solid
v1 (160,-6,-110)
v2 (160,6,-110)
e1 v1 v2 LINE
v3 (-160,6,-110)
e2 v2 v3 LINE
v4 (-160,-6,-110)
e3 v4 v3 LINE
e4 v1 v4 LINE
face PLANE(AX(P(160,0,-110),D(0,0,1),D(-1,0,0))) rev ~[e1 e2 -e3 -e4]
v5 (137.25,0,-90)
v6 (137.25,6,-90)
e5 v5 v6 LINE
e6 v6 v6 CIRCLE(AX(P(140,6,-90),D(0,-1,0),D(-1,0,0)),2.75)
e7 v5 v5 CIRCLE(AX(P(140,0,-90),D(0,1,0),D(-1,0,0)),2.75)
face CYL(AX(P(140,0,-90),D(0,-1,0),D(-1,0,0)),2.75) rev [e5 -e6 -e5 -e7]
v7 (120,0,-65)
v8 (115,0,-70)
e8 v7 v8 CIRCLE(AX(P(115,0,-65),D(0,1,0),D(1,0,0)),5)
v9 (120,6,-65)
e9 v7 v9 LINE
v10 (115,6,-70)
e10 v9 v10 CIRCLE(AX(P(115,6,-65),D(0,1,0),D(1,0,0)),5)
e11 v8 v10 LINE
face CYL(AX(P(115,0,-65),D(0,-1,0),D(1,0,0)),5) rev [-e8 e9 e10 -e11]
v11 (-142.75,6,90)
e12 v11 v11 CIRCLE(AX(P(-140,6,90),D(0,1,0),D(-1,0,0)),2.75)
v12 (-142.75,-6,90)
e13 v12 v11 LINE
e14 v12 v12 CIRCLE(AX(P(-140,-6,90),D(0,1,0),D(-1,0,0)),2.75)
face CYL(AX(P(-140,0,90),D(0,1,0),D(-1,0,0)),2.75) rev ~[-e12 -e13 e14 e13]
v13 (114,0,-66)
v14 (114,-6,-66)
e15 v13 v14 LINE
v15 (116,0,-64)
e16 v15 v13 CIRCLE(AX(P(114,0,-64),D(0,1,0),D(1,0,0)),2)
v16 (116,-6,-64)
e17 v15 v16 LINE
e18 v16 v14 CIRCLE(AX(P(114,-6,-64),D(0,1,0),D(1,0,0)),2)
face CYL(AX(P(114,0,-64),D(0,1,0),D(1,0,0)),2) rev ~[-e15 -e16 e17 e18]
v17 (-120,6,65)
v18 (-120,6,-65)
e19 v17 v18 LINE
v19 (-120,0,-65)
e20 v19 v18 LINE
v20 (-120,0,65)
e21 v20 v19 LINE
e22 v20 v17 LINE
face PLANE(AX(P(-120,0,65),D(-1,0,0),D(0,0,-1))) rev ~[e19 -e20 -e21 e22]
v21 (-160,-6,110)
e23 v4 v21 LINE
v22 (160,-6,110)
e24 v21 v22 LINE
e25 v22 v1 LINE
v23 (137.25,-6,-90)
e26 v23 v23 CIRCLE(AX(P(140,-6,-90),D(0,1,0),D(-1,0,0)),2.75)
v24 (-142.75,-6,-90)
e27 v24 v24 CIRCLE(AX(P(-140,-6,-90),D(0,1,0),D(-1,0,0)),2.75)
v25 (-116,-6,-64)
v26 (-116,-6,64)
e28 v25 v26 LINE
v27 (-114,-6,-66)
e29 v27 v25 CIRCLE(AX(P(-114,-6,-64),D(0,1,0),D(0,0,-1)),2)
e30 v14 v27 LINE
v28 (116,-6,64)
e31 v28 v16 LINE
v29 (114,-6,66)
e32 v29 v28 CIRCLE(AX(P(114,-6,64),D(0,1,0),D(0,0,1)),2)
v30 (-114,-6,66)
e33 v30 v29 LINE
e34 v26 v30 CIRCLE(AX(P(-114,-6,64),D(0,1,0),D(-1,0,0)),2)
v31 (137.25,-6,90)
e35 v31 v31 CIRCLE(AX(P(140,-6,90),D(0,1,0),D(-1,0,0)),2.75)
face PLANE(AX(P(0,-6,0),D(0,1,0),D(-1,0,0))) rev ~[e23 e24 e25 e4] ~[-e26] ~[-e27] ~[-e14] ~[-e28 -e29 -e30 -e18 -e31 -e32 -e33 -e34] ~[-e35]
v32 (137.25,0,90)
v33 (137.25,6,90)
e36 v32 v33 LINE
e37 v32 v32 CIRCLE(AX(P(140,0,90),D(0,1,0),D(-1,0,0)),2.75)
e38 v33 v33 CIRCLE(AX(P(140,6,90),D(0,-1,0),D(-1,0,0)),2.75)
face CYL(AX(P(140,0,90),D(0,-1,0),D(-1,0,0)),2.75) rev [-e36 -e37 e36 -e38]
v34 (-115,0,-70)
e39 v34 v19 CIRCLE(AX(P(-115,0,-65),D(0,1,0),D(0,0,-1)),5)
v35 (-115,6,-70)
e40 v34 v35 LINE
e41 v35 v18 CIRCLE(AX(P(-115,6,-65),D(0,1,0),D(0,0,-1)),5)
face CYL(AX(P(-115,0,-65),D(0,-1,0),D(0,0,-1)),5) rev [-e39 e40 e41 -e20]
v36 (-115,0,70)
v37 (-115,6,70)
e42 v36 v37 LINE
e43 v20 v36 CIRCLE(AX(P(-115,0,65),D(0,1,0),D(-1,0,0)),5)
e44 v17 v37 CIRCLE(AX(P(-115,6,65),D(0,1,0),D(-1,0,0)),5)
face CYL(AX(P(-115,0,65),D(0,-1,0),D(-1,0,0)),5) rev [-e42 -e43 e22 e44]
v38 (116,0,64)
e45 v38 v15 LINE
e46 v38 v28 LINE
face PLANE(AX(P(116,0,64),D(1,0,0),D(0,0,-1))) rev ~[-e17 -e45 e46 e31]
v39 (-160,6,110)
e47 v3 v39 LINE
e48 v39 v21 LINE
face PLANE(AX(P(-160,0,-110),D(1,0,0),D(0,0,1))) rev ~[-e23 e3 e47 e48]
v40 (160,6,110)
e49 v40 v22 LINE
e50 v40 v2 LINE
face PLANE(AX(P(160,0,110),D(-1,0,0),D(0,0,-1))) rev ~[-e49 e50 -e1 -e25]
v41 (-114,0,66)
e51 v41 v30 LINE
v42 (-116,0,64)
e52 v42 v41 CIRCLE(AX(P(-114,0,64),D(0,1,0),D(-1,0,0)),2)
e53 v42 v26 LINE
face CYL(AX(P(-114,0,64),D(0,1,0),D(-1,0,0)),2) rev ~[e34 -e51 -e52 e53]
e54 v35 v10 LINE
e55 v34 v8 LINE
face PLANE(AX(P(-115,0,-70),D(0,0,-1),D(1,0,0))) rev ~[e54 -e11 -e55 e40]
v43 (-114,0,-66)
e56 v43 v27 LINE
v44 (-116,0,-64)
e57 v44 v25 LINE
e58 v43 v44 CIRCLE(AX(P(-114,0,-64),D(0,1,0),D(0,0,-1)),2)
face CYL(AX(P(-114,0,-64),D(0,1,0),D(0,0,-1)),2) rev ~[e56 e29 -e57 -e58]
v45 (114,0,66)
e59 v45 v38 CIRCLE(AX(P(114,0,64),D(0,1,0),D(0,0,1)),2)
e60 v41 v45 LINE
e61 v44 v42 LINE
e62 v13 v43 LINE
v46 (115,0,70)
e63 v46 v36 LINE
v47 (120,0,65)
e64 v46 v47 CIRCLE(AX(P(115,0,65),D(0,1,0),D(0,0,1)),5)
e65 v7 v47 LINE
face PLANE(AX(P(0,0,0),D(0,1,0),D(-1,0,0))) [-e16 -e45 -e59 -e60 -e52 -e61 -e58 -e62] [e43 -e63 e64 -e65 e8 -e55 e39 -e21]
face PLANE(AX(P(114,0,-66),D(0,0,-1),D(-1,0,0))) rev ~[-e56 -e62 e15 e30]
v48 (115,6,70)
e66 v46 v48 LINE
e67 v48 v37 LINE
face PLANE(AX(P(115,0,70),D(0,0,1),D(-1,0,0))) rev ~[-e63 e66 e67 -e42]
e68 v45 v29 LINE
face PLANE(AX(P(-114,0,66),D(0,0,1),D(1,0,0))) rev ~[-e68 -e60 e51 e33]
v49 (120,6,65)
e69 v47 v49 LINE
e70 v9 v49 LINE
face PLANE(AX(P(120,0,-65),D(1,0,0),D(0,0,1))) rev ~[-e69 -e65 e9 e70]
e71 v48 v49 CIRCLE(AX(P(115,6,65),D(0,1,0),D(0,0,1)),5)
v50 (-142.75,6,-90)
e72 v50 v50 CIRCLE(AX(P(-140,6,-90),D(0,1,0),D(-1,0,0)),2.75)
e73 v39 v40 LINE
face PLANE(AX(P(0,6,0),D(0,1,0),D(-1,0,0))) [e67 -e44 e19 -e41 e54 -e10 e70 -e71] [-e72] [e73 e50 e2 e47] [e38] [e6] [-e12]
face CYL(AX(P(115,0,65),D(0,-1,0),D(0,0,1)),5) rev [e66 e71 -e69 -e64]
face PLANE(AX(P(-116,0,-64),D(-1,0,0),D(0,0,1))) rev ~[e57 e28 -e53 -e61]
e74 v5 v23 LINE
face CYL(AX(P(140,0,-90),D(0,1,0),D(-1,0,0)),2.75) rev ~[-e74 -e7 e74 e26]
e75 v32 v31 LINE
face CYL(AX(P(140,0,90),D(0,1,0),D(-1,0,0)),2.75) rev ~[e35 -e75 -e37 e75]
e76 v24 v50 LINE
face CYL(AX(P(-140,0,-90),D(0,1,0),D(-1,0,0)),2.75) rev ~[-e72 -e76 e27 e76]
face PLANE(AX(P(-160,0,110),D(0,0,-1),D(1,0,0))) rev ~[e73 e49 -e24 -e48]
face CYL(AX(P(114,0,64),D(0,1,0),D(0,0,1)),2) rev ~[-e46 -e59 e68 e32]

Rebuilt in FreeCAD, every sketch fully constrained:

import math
import FreeCAD as App
import Part
import Sketcher
from FreeCAD import Vector
Q = App.Units.Quantity

doc = App.newDocument("Part")
body = doc.addObject("PartDesign::Body", "Body")

# Sketch on XZ plane
sketch1 = body.newObject("Sketcher::SketchObject", "Sketch")
sketch1.AttachmentSupport = (doc.getObject("XZ_Plane"), [""])
sketch1.MapMode = "FlatFace"
sketch1.addGeometry(Part.LineSegment(Vector(160, 110, 0), Vector(160, -110, 0)), False)
sketch1.addGeometry(Part.LineSegment(Vector(160, -110, 0), Vector(-160, -110, 0)), False)
sketch1.addGeometry(Part.LineSegment(Vector(-160, -110, 0), Vector(-160, 110, 0)), False)
sketch1.addGeometry(Part.LineSegment(Vector(-160, 110, 0), Vector(160, 110, 0)), False)
sketch1.addGeometry(Part.ArcOfCircle(Part.Circle(Vector(-115, 65, 0), Vector(0, 0, 1), 5), math.radians(90), math.radians(180)), False)
sketch1.addGeometry(Part.LineSegment(Vector(-120, 65, 0), Vector(-120, -65, 0)), False)
sketch1.addGeometry(Part.ArcOfCircle(Part.Circle(Vector(-115, -65, 0), Vector(0, 0, 1), 5), math.radians(180), math.radians(270)), False)
sketch1.addGeometry(Part.LineSegment(Vector(-115, -70, 0), Vector(115, -70, 0)), False)
sketch1.addGeometry(Part.ArcOfCircle(Part.Circle(Vector(115, -65, 0), Vector(0, 0, 1), 5), math.radians(-90), math.radians(0)), False)
sketch1.addGeometry(Part.LineSegment(Vector(120, -65, 0), Vector(120, 65, 0)), False)
sketch1.addGeometry(Part.ArcOfCircle(Part.Circle(Vector(115, 65, 0), Vector(0, 0, 1), 5), math.radians(0), math.radians(90)), False)
sketch1.addGeometry(Part.LineSegment(Vector(115, 70, 0), Vector(-115, 70, 0)), False)
sketch1.addConstraint(Sketcher.Constraint("Coincident", 0, 2, 1, 1))
sketch1.addConstraint(Sketcher.Constraint("Coincident", 1, 2, 2, 1))
sketch1.addConstraint(Sketcher.Constraint("Coincident", 2, 2, 3, 1))
sketch1.addConstraint(Sketcher.Constraint("Coincident", 3, 2, 0, 1))
sketch1.addConstraint(Sketcher.Constraint("Tangent", 4, 2, 5, 1))
sketch1.addConstraint(Sketcher.Constraint("Tangent", 5, 2, 6, 1))
sketch1.addConstraint(Sketcher.Constraint("Tangent", 6, 2, 7, 1))
sketch1.addConstraint(Sketcher.Constraint("Tangent", 7, 2, 8, 1))
sketch1.addConstraint(Sketcher.Constraint("Tangent", 8, 2, 9, 1))
sketch1.addConstraint(Sketcher.Constraint("Tangent", 9, 2, 10, 1))
sketch1.addConstraint(Sketcher.Constraint("Tangent", 10, 2, 11, 1))
sketch1.addConstraint(Sketcher.Constraint("Tangent", 11, 2, 4, 1))
sketch1.addConstraint(Sketcher.Constraint("Vertical", 0))
sketch1.addConstraint(Sketcher.Constraint("Horizontal", 1))
sketch1.addConstraint(Sketcher.Constraint("Vertical", 2))
sketch1.addConstraint(Sketcher.Constraint("Horizontal", 3))
sketch1.addConstraint(Sketcher.Constraint("Vertical", 5))
sketch1.addConstraint(Sketcher.Constraint("Horizontal", 7))
sketch1.addConstraint(Sketcher.Constraint("Vertical", 9))
sketch1.addConstraint(Sketcher.Constraint("Horizontal", 11))
sketch1.addConstraint(Sketcher.Constraint("Equal", 4, 6))
sketch1.addConstraint(Sketcher.Constraint("Equal", 6, 8))
sketch1.addConstraint(Sketcher.Constraint("Equal", 8, 10))
sketch1.addConstraint(Sketcher.Constraint("Symmetric", 4, 3, 8, 3, -1, 1))
sketch1.addConstraint(Sketcher.Constraint("Symmetric", 0, 2, 2, 2, -1, 1))
sketch1.addConstraint(Sketcher.Constraint("Radius", 4, Q("5 mm")))
sketch1.addConstraint(Sketcher.Constraint("DistanceX", 2, 2, 4, 2, Q("40 mm")))
sketch1.addConstraint(Sketcher.Constraint("DistanceY", 1, 2, 6, 2, Q("40 mm")))
sketch1.addConstraint(Sketcher.Constraint("DistanceX", 1, 2, 1, 1, Q("320 mm")))
sketch1.addConstraint(Sketcher.Constraint("DistanceY", 0, 2, 0, 1, Q("220 mm")))
pad1 = body.newObject("PartDesign::Pad", "Pad")
pad1.Profile = sketch1
pad1.Length = 6
pad1.Reversed = True

# Sketch on XZ plane
sketch2 = body.newObject("Sketcher::SketchObject", "Sketch001")
sketch2.AttachmentSupport = (doc.getObject("XZ_Plane"), [""])
sketch2.MapMode = "FlatFace"
sketch2.addGeometry(Part.LineSegment(Vector(160, 110, 0), Vector(160, -110, 0)), False)
sketch2.addGeometry(Part.LineSegment(Vector(160, -110, 0), Vector(-160, -110, 0)), False)
sketch2.addGeometry(Part.LineSegment(Vector(-160, -110, 0), Vector(-160, 110, 0)), False)
sketch2.addGeometry(Part.LineSegment(Vector(-160, 110, 0), Vector(160, 110, 0)), False)
sketch2.addGeometry(Part.ArcOfCircle(Part.Circle(Vector(114, -64, 0), Vector(0, 0, 1), 2), math.radians(-90), math.radians(0)), False)
sketch2.addGeometry(Part.LineSegment(Vector(116, -64, 0), Vector(116, 64, 0)), False)
sketch2.addGeometry(Part.ArcOfCircle(Part.Circle(Vector(114, 64, 0), Vector(0, 0, 1), 2), math.radians(0), math.radians(90)), False)
sketch2.addGeometry(Part.LineSegment(Vector(114, 66, 0), Vector(-114, 66, 0)), False)
sketch2.addGeometry(Part.ArcOfCircle(Part.Circle(Vector(-114, 64, 0), Vector(0, 0, 1), 2), math.radians(90), math.radians(180)), False)
sketch2.addGeometry(Part.LineSegment(Vector(-116, 64, 0), Vector(-116, -64, 0)), False)
sketch2.addGeometry(Part.ArcOfCircle(Part.Circle(Vector(-114, -64, 0), Vector(0, 0, 1), 2), math.radians(180), math.radians(270)), False)
sketch2.addGeometry(Part.LineSegment(Vector(-114, -66, 0), Vector(114, -66, 0)), False)
sketch2.addConstraint(Sketcher.Constraint("Coincident", 0, 2, 1, 1))
sketch2.addConstraint(Sketcher.Constraint("Coincident", 1, 2, 2, 1))
sketch2.addConstraint(Sketcher.Constraint("Coincident", 2, 2, 3, 1))
sketch2.addConstraint(Sketcher.Constraint("Coincident", 3, 2, 0, 1))
sketch2.addConstraint(Sketcher.Constraint("Tangent", 4, 2, 5, 1))
sketch2.addConstraint(Sketcher.Constraint("Tangent", 5, 2, 6, 1))
sketch2.addConstraint(Sketcher.Constraint("Tangent", 6, 2, 7, 1))
sketch2.addConstraint(Sketcher.Constraint("Tangent", 7, 2, 8, 1))
sketch2.addConstraint(Sketcher.Constraint("Tangent", 8, 2, 9, 1))
sketch2.addConstraint(Sketcher.Constraint("Tangent", 9, 2, 10, 1))
sketch2.addConstraint(Sketcher.Constraint("Tangent", 10, 2, 11, 1))
sketch2.addConstraint(Sketcher.Constraint("Tangent", 11, 2, 4, 1))
sketch2.addConstraint(Sketcher.Constraint("Vertical", 0))
sketch2.addConstraint(Sketcher.Constraint("Horizontal", 1))
sketch2.addConstraint(Sketcher.Constraint("Vertical", 2))
sketch2.addConstraint(Sketcher.Constraint("Horizontal", 3))
sketch2.addConstraint(Sketcher.Constraint("Vertical", 5))
sketch2.addConstraint(Sketcher.Constraint("Horizontal", 7))
sketch2.addConstraint(Sketcher.Constraint("Vertical", 9))
sketch2.addConstraint(Sketcher.Constraint("Horizontal", 11))
sketch2.addConstraint(Sketcher.Constraint("Equal", 4, 6))
sketch2.addConstraint(Sketcher.Constraint("Equal", 6, 8))
sketch2.addConstraint(Sketcher.Constraint("Equal", 8, 10))
sketch2.addConstraint(Sketcher.Constraint("Symmetric", 4, 3, 8, 3, -1, 1))
sketch2.addConstraint(Sketcher.Constraint("Symmetric", 0, 2, 2, 2, -1, 1))
sketch2.addConstraint(Sketcher.Constraint("Radius", 4, Q("2 mm")))
sketch2.addConstraint(Sketcher.Constraint("DistanceX", 7, 2, 7, 1, Q("228 mm")))
sketch2.addConstraint(Sketcher.Constraint("DistanceY", 5, 1, 5, 2, Q("128 mm")))
sketch2.addConstraint(Sketcher.Constraint("DistanceX", 1, 2, 1, 1, Q("320 mm")))
sketch2.addConstraint(Sketcher.Constraint("DistanceY", 0, 2, 0, 1, Q("220 mm")))
pad2 = body.newObject("PartDesign::Pad", "Pad001")
pad2.Profile = sketch2
pad2.Length = 6

# Sketch on XZ plane
sketch3 = body.newObject("Sketcher::SketchObject", "Sketch002")
sketch3.AttachmentSupport = (doc.getObject("XZ_Plane"), [""])
sketch3.MapMode = "FlatFace"
sketch3.addGeometry(Part.Circle(Vector(140, -90, 0), Vector(0, 0, 1), 2.8), False)
sketch3.addGeometry(Part.Circle(Vector(-140, -90, 0), Vector(0, 0, 1), 2.8), False)
sketch3.addGeometry(Part.Circle(Vector(140, 90, 0), Vector(0, 0, 1), 2.8), False)
sketch3.addGeometry(Part.Circle(Vector(-140, 90, 0), Vector(0, 0, 1), 2.8), False)
sketch3.addConstraint(Sketcher.Constraint("Equal", 0, 1))
sketch3.addConstraint(Sketcher.Constraint("Equal", 1, 2))
sketch3.addConstraint(Sketcher.Constraint("Equal", 2, 3))
sketch3.addConstraint(Sketcher.Constraint("Symmetric", 1, 3, 2, 3, -1, 1))
sketch3.addConstraint(Sketcher.Constraint("Symmetric", 0, 3, 3, 3, -1, 1))
sketch3.addConstraint(Sketcher.Constraint("Symmetric", 0, 3, 1, 3, -2))
sketch3.addConstraint(Sketcher.Constraint("Diameter", 0, Q("5.5 mm")))
sketch3.addConstraint(Sketcher.Constraint("DistanceX", -1, 1, 0, 3, Q("140 mm")))
sketch3.addConstraint(Sketcher.Constraint("DistanceY", 0, 3, -1, 1, Q("90 mm")))
pocket1 = body.newObject("PartDesign::Pocket", "Pocket")
pocket1.Profile = sketch3
pocket1.Type = "ThroughAll"
pocket1.Midplane = True

doc.recompute()
